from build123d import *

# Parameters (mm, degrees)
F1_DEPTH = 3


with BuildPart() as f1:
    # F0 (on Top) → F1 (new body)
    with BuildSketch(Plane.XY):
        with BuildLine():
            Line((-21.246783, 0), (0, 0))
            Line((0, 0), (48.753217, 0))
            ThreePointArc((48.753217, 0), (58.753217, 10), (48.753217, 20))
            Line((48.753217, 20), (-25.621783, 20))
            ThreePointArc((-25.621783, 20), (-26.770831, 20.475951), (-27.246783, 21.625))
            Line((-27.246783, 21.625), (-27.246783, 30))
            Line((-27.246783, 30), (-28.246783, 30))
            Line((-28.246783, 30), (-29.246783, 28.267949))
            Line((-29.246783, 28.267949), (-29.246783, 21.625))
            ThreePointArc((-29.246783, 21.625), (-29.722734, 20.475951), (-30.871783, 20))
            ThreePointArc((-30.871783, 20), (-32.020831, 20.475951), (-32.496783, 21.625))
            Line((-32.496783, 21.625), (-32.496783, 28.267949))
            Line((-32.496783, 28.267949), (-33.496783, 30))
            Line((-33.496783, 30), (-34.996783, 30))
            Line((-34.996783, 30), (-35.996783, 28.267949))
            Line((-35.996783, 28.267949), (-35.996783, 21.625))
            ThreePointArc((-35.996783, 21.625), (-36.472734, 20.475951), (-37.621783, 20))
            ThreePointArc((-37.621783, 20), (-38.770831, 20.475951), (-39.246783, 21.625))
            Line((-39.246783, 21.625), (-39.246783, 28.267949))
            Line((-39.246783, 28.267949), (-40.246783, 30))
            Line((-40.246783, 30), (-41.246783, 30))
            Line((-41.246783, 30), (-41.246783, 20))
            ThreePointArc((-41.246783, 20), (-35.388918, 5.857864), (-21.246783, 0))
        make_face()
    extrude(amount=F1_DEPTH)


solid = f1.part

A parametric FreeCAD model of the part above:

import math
import FreeCAD as App
import Part
import Sketcher

V = App.Vector
Q = App.Units.Quantity

doc = App.newDocument("Part")
params = doc.addObject("Spreadsheet::Sheet", "Params")
for row, (alias, value) in enumerate([
    ("sketch1_radius", "10 mm"),
    ("sketch1_width", "70 mm"),
    ("sketch1_width2", "1 mm"),
    ("sketch1_height", "10 mm"),
    ("sketch1_length", "2 mm"),
    ("pad1_length", "3 mm"),
], start=1):
    params.set(f"A{row}", alias)
    params.set(f"B{row}", "=" + value)
    params.setAlias(f"B{row}", alias)

body = doc.addObject("PartDesign::Body", "Body")

sketch1 = body.newObject("Sketcher::SketchObject", "Sketch")
sketch1.AttachmentSupport = (doc.getObject("XY_Plane"), [""])
sketch1.MapMode = "FlatFace"
sketch1.addGeometry(Part.LineSegment(V(-21.2, 0, 0), V(48.8, 0, 0)), False)
sketch1.addGeometry(Part.ArcOfCircle(Part.Circle(V(48.8, 10, 0), V(0, 0, 1), 10), math.radians(-90), math.radians(90)), False)
sketch1.addGeometry(Part.LineSegment(V(48.8, 20, 0), V(-25.6, 20, 0)), False)
sketch1.addGeometry(Part.ArcOfCircle(Part.Circle(V(-25.6, 21.6, 0), V(0, 0, 1), 1.6), math.radians(-180), math.radians(-90)), False)
sketch1.addGeometry(Part.LineSegment(V(-27.2, 21.6, 0), V(-27.2, 30, 0)), False)
sketch1.addGeometry(Part.LineSegment(V(-27.2, 30, 0), V(-28.2, 30, 0)), False)
sketch1.addGeometry(Part.LineSegment(V(-28.2, 30, 0), V(-29.2, 28.3, 0)), False)
sketch1.addGeometry(Part.LineSegment(V(-29.2, 28.3, 0), V(-29.2, 21.6, 0)), False)
sketch1.addGeometry(Part.ArcOfCircle(Part.Circle(V(-30.9, 21.6, 0), V(0, 0, 1), 1.6), math.radians(-90), math.radians(0)), False)
sketch1.addGeometry(Part.ArcOfCircle(Part.Circle(V(-30.9, 21.6, 0), V(0, 0, 1), 1.6), math.radians(-180), math.radians(-90)), False)
sketch1.addGeometry(Part.LineSegment(V(-32.5, 21.6, 0), V(-32.5, 28.3, 0)), False)
sketch1.addGeometry(Part.LineSegment(V(-32.5, 28.3, 0), V(-33.5, 30, 0)), False)
sketch1.addGeometry(Part.LineSegment(V(-33.5, 30, 0), V(-35, 30, 0)), False)
sketch1.addGeometry(Part.LineSegment(V(-35, 30, 0), V(-36, 28.3, 0)), False)
sketch1.addGeometry(Part.LineSegment(V(-36, 28.3, 0), V(-36, 21.6, 0)), False)
sketch1.addGeometry(Part.ArcOfCircle(Part.Circle(V(-37.6, 21.6, 0), V(0, 0, 1), 1.6), math.radians(-90), math.radians(0)), False)
sketch1.addGeometry(Part.ArcOfCircle(Part.Circle(V(-37.6, 21.6, 0), V(0, 0, 1), 1.6), math.radians(-180), math.radians(-90)), False)
sketch1.addGeometry(Part.LineSegment(V(-39.2, 21.6, 0), V(-39.2, 28.3, 0)), False)
sketch1.addGeometry(Part.LineSegment(V(-39.2, 28.3, 0), V(-40.2, 30, 0)), False)
sketch1.addGeometry(Part.LineSegment(V(-40.2, 30, 0), V(-41.2, 30, 0)), False)
sketch1.addGeometry(Part.LineSegment(V(-41.2, 30, 0), V(-41.2, 20, 0)), False)
sketch1.addGeometry(Part.ArcOfCircle(Part.Circle(V(-21.2, 20, 0), V(0, 0, 1), 20), math.radians(-180), math.radians(-90)), False)
sketch1.addConstraint(Sketcher.Constraint("Tangent", 0, 2, 1, 1))
sketch1.addConstraint(Sketcher.Constraint("Tangent", 1, 2, 2, 1))
sketch1.addConstraint(Sketcher.Constraint("Tangent", 2, 2, 3, 2))
sketch1.addConstraint(Sketcher.Constraint("Tangent", 3, 1, 4, 1))
sketch1.addConstraint(Sketcher.Constraint("Coincident", 4, 2, 5, 1))
sketch1.addConstraint(Sketcher.Constraint("Coincident", 5, 2, 6, 1))
sketch1.addConstraint(Sketcher.Constraint("Coincident", 6, 2, 7, 1))
sketch1.addConstraint(Sketcher.Constraint("Tangent", 7, 2, 8, 2))
sketch1.addConstraint(Sketcher.Constraint("Tangent", 8, 1, 9, 2))
sketch1.addConstraint(Sketcher.Constraint("Tangent", 9, 1, 10, 1))
sketch1.addConstraint(Sketcher.Constraint("Coincident", 10, 2, 11, 1))
sketch1.addConstraint(Sketcher.Constraint("Coincident", 11, 2, 12, 1))
sketch1.addConstraint(Sketcher.Constraint("Coincident", 12, 2, 13, 1))
sketch1.addConstraint(Sketcher.Constraint("Coincident", 13, 2, 14, 1))
sketch1.addConstraint(Sketcher.Constraint("Tangent", 14, 2, 15, 2))
sketch1.addConstraint(Sketcher.Constraint("Tangent", 15, 1, 16, 2))
sketch1.addConstraint(Sketcher.Constraint("Tangent", 16, 1, 17, 1))
sketch1.addConstraint(Sketcher.Constraint("Coincident", 17, 2, 18, 1))
sketch1.addConstraint(Sketcher.Constraint("Coincident", 18, 2, 19, 1))
sketch1.addConstraint(Sketcher.Constraint("Coincident", 19, 2, 20, 1))
sketch1.addConstraint(Sketcher.Constraint("Tangent", 20, 2, 21, 1))
sketch1.addConstraint(Sketcher.Constraint("Tangent", 21, 2, 0, 1))
sketch1.addConstraint(Sketcher.Constraint("Horizontal", 0))
sketch1.addConstraint(Sketcher.Constraint("Horizontal", 2))
sketch1.addConstraint(Sketcher.Constraint("Vertical", 4))
sketch1.addConstraint(Sketcher.Constraint("Horizontal", 5))
sketch1.addConstraint(Sketcher.Constraint("Vertical", 7))
sketch1.addConstraint(Sketcher.Constraint("Vertical", 10))
sketch1.addConstraint(Sketcher.Constraint("Horizontal", 12))
sketch1.addConstraint(Sketcher.Constraint("Vertical", 14))
sketch1.addConstraint(Sketcher.Constraint("Vertical", 17))
sketch1.addConstraint(Sketcher.Constraint("Horizontal", 19))
sketch1.addConstraint(Sketcher.Constraint("Vertical", 20))
sketch1.addConstraint(Sketcher.Constraint("Equal", 3, 8))
sketch1.addConstraint(Sketcher.Constraint("Equal", 8, 9))
sketch1.addConstraint(Sketcher.Constraint("Equal", 9, 15))
sketch1.addConstraint(Sketcher.Constraint("Equal", 15, 16))
sketch1.addConstraint(Sketcher.Constraint("PointOnObject", 0, 2, -1))
sketch1.addConstraint(Sketcher.Constraint("Parallel", 6, 13))
sketch1.addConstraint(Sketcher.Constraint("Parallel", 11, 18))
sketch1.addConstraint(Sketcher.Constraint("Horizontal", 3, 3, 8, 3))
sketch1.addConstraint(Sketcher.Constraint("Horizontal", 9, 3, 15, 3))
sketch1.addConstraint(Sketcher.Constraint("Horizontal", 21, 3, 1, 2))
sketch1.addConstraint(Sketcher.Constraint("Horizontal", 6, 2, 10, 2))
sketch1.addConstraint(Sketcher.Constraint("Horizontal", 5, 2, 11, 2))
sketch1.addConstraint(Sketcher.Constraint("Horizontal", 10, 2, 13, 2))
sketch1.addConstraint(Sketcher.Constraint("Horizontal", 13, 2, 17, 2))
sketch1.addConstraint(Sketcher.Constraint("Horizontal", 12, 2, 18, 2))
sketch1.addConstraint(Sketcher.Constraint("Vertical", 9, 3, 8, 1))
sketch1.addConstraint(Sketcher.Constraint("Vertical", 16, 3, 15, 1))
sketch1.addConstraint(Sketcher.Constraint("Equal", 5, 19))
sketch1.addConstraint(Sketcher.Constraint("Equal", 6, 11))
sketch1.addConstraint(Sketcher.Constraint("Radius", 1, Q("10 mm")))
sketch1.addConstraint(Sketcher.Constraint("DistanceX", 0, 1, 0, 2, Q("70 mm")))
sketch1.addConstraint(Sketcher.Constraint("DistanceX", 5, 2, 5, 1, Q("1 mm")))
sketch1.addConstraint(Sketcher.Constraint("DistanceY", 20, 2, 20, 1, Q("10 mm")))
sketch1.addConstraint(Sketcher.Constraint("Angle", 6, Q("-119.999997 deg")))
sketch1.addConstraint(Sketcher.Constraint("Distance", 6, Q("2 mm")))
sketch1.addConstraint(Sketcher.Constraint("DistanceX", 12, 2, 12, 1, Q("1.5 mm")))
sketch1.addConstraint(Sketcher.Constraint("Radius", 3, Q("1.625 mm")))
sketch1.addConstraint(Sketcher.Constraint("DistanceX", 8, 3, -1, 1, Q("30.871781 mm")))
sketch1.setExpression("Constraints[52]", "Params.sketch1_radius")
sketch1.setExpression("Constraints[53]", "Params.sketch1_width")
sketch1.setExpression("Constraints[54]", "Params.sketch1_width2")
sketch1.setExpression("Constraints[55]", "Params.sketch1_height")
sketch1.setExpression("Constraints[57]", "Params.sketch1_length")
pad1 = body.newObject("PartDesign::Pad", "Pad")
pad1.Profile = sketch1
pad1.setExpression("Length", "Params.pad1_length")

doc.recompute()
